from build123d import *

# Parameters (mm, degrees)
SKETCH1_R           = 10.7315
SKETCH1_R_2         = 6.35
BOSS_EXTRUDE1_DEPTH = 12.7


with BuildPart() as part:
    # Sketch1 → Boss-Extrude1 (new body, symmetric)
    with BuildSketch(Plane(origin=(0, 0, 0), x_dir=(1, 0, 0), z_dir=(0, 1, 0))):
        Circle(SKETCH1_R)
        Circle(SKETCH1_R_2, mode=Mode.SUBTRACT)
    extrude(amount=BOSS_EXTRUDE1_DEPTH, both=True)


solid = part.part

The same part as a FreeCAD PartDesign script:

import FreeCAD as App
import Part
import Sketcher
from FreeCAD import Vector
Q = App.Units.Quantity

doc = App.newDocument("Part")
body = doc.addObject("PartDesign::Body", "Body")

# Sketch on XZ plane
sketch1 = body.newObject("Sketcher::SketchObject", "Sketch")
sketch1.AttachmentSupport = (doc.getObject("XZ_Plane"), [""])
sketch1.MapMode = "FlatFace"
sketch1.addGeometry(Part.Circle(Vector(0, 0, 0), Vector(0, 0, 1), 11), False)
sketch1.addGeometry(Part.Circle(Vector(0, 0, 0), Vector(0, 0, 1), 6), False)
sketch1.addConstraint(Sketcher.Constraint("Coincident", 0, 3, -1, 1))
sketch1.addConstraint(Sketcher.Constraint("Coincident", 1, 3, -1, 1))
sketch1.addConstraint(Sketcher.Constraint("Diameter", 1, Q("0.5 in")))
sketch1.addConstraint(Sketcher.Constraint("Diameter", 0, Q("0.845 in")))
pad1 = body.newObject("PartDesign::Pad", "Pad")
pad1.Profile = sketch1
pad1.Length = Q("1 in")
pad1.Midplane = True

doc.recompute()
